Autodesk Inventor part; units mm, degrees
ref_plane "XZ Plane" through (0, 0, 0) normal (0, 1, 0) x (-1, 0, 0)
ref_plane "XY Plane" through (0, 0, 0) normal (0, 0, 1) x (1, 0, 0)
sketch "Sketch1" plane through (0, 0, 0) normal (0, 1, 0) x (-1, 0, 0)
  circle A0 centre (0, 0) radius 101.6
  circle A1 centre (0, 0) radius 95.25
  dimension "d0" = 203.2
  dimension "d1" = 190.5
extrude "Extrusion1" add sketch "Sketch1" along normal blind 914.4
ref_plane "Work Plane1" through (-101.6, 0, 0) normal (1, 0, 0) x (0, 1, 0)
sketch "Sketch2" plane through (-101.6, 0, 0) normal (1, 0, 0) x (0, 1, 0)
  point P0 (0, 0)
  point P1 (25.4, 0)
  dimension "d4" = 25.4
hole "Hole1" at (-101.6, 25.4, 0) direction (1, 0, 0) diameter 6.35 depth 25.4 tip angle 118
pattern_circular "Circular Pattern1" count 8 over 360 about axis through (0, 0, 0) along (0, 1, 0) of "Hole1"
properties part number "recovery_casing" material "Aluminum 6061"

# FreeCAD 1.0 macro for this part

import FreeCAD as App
import Part
import Sketcher
Q = App.Units.Quantity

doc = App.newDocument("Part")
body = doc.addObject("PartDesign::Body", "Body")

# Sketch on XZ plane
sketch1 = doc.addObject("Sketcher::SketchObject", "Sketch")
body.addObject(sketch1)
sketch1.AttachmentSupport = (doc.XZ_Plane, [""])
sketch1.MapMode = "FlatFace"
sketch1.addGeometry([
    Part.Circle(App.Vector(0, 0, 0), App.Vector(0, 0, 1), 102),
    Part.Circle(App.Vector(0, 0, 0), App.Vector(0, 0, 1), 95),
], False)
sketch1.addConstraint([
    Sketcher.Constraint("Coincident", 0, 3, -1, 1),
    Sketcher.Constraint("Coincident", 1, 3, -1, 1),
    Sketcher.Constraint("Diameter", 0, Q("8 in")),
    Sketcher.Constraint("Diameter", 1, Q("7.5 in")),
])
pad1 = doc.addObject("PartDesign::Pad", "Pad")
body.addObject(pad1)
pad1.Profile = sketch1
pad1.Length = Q("36 in")
pad1.Reversed = True

# Sketch on YZ plane
sketch2 = doc.addObject("Sketcher::SketchObject", "Sketch001")
body.addObject(sketch2)
sketch2.AttachmentSupport = (doc.YZ_Plane, [""])
sketch2.MapMode = "FlatFace"
sketch2.AttachmentOffset = App.Placement(App.Vector(0, 0, -4 * 25.4), App.Rotation())
sketch2.addGeometry(Part.Circle(App.Vector(25.4, 0, 0), App.Vector(0, 0, 1), 3.2), False)
sketch2.addConstraint([
    Sketcher.Constraint("PointOnObject", 0, 3, -1),
    Sketcher.Constraint("Diameter", 0, Q("0.25 in")),
    Sketcher.Constraint("DistanceX", -1, 1, 0, 3, Q("1 in")),
])
doc.recompute()
hole = doc.addObject("PartDesign::Hole", "Hole")
body.addObject(hole)
hole.Profile = sketch2
hole.ThreadType = "None"
hole.Diameter = Q("0.25 in")
hole.DepthType = "Dimension"
hole.Depth = Q("1 in")
hole.DrillPoint = "Angled"
hole.DrillPointAngle = 118
hole.Reversed = True
doc.recompute()

polarpattern = doc.addObject("PartDesign::PolarPattern", "PolarPattern")
body.addObject(polarpattern)
polarpattern.Originals = [hole]
polarpattern.Axis = (doc.Y_Axis, [""])
polarpattern.Angle = 360
polarpattern.Occurrences = 8
body.Tip = polarpattern

doc.recompute()
